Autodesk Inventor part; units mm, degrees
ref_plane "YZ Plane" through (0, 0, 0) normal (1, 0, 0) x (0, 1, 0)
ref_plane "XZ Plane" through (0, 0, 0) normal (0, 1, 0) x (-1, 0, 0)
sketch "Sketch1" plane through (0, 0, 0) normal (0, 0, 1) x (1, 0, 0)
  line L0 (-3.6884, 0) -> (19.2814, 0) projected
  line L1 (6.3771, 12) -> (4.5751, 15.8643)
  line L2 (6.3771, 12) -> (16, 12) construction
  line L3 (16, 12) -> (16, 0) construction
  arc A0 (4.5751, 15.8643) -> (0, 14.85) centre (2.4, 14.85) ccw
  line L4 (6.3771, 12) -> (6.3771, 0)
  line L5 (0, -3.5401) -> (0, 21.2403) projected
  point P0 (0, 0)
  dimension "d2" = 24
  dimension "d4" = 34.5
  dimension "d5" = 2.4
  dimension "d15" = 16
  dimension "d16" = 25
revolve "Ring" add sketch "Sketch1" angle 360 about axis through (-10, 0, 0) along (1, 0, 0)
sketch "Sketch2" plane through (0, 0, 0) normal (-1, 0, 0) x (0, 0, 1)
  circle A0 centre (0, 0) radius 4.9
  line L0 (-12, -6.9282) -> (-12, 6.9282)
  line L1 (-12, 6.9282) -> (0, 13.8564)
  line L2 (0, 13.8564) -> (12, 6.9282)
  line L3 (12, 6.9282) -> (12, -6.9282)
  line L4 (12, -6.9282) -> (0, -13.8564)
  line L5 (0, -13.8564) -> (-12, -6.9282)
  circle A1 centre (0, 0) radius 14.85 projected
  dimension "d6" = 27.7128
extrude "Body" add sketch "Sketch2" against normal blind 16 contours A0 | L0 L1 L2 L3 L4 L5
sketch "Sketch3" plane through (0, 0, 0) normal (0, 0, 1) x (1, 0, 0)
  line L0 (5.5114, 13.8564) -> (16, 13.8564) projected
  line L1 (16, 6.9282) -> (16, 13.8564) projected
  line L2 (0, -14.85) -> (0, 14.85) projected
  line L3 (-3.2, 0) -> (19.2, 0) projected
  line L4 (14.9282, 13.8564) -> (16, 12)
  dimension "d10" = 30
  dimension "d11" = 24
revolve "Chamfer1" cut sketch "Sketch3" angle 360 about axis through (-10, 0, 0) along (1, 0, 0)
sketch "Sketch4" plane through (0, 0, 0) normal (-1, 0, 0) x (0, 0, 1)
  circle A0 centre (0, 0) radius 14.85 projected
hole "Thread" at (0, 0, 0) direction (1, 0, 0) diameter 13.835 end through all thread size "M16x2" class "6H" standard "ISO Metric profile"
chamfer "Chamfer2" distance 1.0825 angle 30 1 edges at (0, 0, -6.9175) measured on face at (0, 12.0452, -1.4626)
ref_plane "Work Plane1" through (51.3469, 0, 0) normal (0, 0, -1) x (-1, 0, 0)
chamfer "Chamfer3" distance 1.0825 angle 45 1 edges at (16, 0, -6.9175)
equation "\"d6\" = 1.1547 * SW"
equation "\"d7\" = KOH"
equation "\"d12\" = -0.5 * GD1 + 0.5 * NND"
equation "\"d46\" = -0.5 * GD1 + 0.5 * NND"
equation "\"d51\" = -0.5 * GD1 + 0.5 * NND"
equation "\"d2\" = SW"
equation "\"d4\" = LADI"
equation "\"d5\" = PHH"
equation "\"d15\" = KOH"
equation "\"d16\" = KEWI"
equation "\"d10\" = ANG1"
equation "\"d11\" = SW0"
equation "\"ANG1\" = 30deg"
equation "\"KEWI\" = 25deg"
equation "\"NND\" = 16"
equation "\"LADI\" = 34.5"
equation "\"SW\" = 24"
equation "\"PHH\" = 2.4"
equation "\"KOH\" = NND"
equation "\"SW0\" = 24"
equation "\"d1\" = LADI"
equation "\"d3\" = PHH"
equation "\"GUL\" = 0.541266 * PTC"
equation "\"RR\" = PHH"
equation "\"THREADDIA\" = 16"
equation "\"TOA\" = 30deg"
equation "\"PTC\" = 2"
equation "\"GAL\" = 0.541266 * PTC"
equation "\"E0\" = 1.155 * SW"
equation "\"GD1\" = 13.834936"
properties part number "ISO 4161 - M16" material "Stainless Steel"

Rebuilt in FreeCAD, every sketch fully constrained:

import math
import FreeCAD as App
import Part
import Sketcher
from FreeCAD import Vector
Q = App.Units.Quantity


def edges_at(feature, points):
    """Names of the edges that pass closest to the given points."""
    edges = feature.Shape.Edges
    near = lambda p: min(range(len(edges)), key=lambda i: edges[i].distToShape(Part.Vertex(*p))[0])
    return sorted({f"Edge{near(p) + 1}" for p in points})

doc = App.newDocument("Part")
body = doc.addObject("PartDesign::Body", "Body")

# Sketch on XY plane
sketch1 = body.newObject("Sketcher::SketchObject", "Sketch")
sketch1.AttachmentSupport = (doc.getObject("XY_Plane"), [""])
sketch1.MapMode = "FlatFace"
sketch1.addGeometry([
    Part.LineSegment(Vector(0, 14.85, 0), Vector(0, 0, 0)),  # 0
    Part.LineSegment(Vector(0, 0, 0), Vector(6.3771, 0, 0)),  # 1
    Part.LineSegment(Vector(6.3771, 0, 0), Vector(6.3771, 12, 0)),  # 2
    Part.LineSegment(Vector(6.3771, 12, 0), Vector(4.5751, 15.8643, 0)),  # 3
    Part.ArcOfCircle(Part.Circle(Vector(2.4, 14.85, 0), Vector(0, 0, 1), 2.399972), math.radians(25.00074), math.radians(180)),  # 4
], False)
sketch1.addConstraint([
    Sketcher.Constraint("Coincident", 0, 2, 1, 1),
    Sketcher.Constraint("Coincident", 1, 2, 2, 1),
    Sketcher.Constraint("Coincident", 2, 2, 3, 1),
    Sketcher.Constraint("Tangent", 3, 2, 4, 1),
    Sketcher.Constraint("Tangent", 4, 2, 0, 1),
    Sketcher.Constraint("Vertical", 0),
    Sketcher.Constraint("Horizontal", 1),
    Sketcher.Constraint("Vertical", 2),
    Sketcher.Constraint("Coincident", 0, 2, -1, 1),
    Sketcher.Constraint("Radius", 4, Q("2.4 mm")),
    Sketcher.Constraint("DistanceY", 2, 1, 2, 2, Q("12 mm")),
    Sketcher.Constraint("Angle", 3, Q("115.0006 deg")),
    Sketcher.Constraint("DistanceY", 0, 2, 0, 1, Q("14.85 mm")),
])
revolution = body.newObject("PartDesign::Revolution", "Revolution")
revolution.Profile = sketch1
revolution.ReferenceAxis = (sketch1, ["H_Axis"])
revolution.Angle = 360

# Sketch on YZ plane
sketch2 = body.newObject("Sketcher::SketchObject", "Sketch001")
sketch2.AttachmentSupport = (doc.getObject("YZ_Plane"), [""])
sketch2.MapMode = "FlatFace"
sketch2.addGeometry([
    Part.LineSegment(Vector(6.9282, -12, 0), Vector(-6.9282, -12, 0)),  # 0
    Part.LineSegment(Vector(-6.9282, -12, 0), Vector(-13.8564, 0, 0)),  # 1
    Part.LineSegment(Vector(-13.8564, 0, 0), Vector(-6.9282, 12, 0)),  # 2
    Part.LineSegment(Vector(-6.9282, 12, 0), Vector(6.9282, 12, 0)),  # 3
    Part.LineSegment(Vector(6.9282, 12, 0), Vector(13.8564, 0, 0)),  # 4
    Part.LineSegment(Vector(13.8564, 0, 0), Vector(6.9282, -12, 0)),  # 5
], False)
sketch2.addConstraint([
    Sketcher.Constraint("Coincident", 0, 2, 1, 1),
    Sketcher.Constraint("Coincident", 1, 2, 2, 1),
    Sketcher.Constraint("Coincident", 2, 2, 3, 1),
    Sketcher.Constraint("Coincident", 3, 2, 4, 1),
    Sketcher.Constraint("Coincident", 4, 2, 5, 1),
    Sketcher.Constraint("Coincident", 5, 2, 0, 1),
    Sketcher.Constraint("Horizontal", 0),
    Sketcher.Constraint("Horizontal", 3),
    Sketcher.Constraint("Symmetric", 0, 2, 3, 2, -1, 1),
    Sketcher.Constraint("Symmetric", 1, 2, 4, 2, -1, 1),
    Sketcher.Constraint("PointOnObject", 1, 2, -1),
    Sketcher.Constraint("Parallel", 2, 5),
    Sketcher.Constraint("Vertical", 0, 2, 2, 2),
    Sketcher.Constraint("Angle", 1, Q("120 deg")),
    Sketcher.Constraint("DistanceY", 0, 2, -1, 1, Q("12 mm")),
    Sketcher.Constraint("DistanceX", 1, 2, 4, 2, Q("27.7128 mm")),
])
pad1 = body.newObject("PartDesign::Pad", "Pad")
pad1.Profile = sketch2
pad1.Length = 16

# Sketch on XY plane
sketch3 = body.newObject("Sketcher::SketchObject", "Sketch002")
sketch3.AttachmentSupport = (doc.getObject("XY_Plane"), [""])
sketch3.MapMode = "FlatFace"
sketch3.addGeometry([
    Part.LineSegment(Vector(16, 13.8564, 0), Vector(14.9282, 13.8564, 0)),
    Part.LineSegment(Vector(14.9282, 13.8564, 0), Vector(16, 12, 0)),
    Part.LineSegment(Vector(16, 12, 0), Vector(16, 13.8564, 0)),
], False)
sketch3.addConstraint([
    Sketcher.Constraint("Coincident", 0, 2, 1, 1),
    Sketcher.Constraint("Coincident", 1, 2, 2, 1),
    Sketcher.Constraint("Coincident", 2, 2, 0, 1),
    Sketcher.Constraint("Horizontal", 0),
    Sketcher.Constraint("Vertical", 2),
    Sketcher.Constraint("Angle", 1, Q("-59.9998 deg")),
    Sketcher.Constraint("DistanceX", -1, 1, 1, 2, Q("16 mm")),
    Sketcher.Constraint("DistanceY", -1, 1, 1, 2, Q("12 mm")),
    Sketcher.Constraint("DistanceX", 0, 2, 0, 1, Q("1.0718 mm")),
])
groove = body.newObject("PartDesign::Groove", "Groove")
groove.Profile = sketch3
groove.ReferenceAxis = (sketch3, ["H_Axis"])
groove.Angle = 360

# Sketch on YZ plane
sketch4 = body.newObject("Sketcher::SketchObject", "Sketch003")
sketch4.AttachmentSupport = (doc.getObject("YZ_Plane"), [""])
sketch4.MapMode = "FlatFace"
sketch4.addGeometry(Part.Circle(Vector(0, 0, 0), Vector(0, 0, 1), 6.9175), False)
sketch4.addConstraint([
    Sketcher.Constraint("Coincident", 0, 3, -1, 1),
    Sketcher.Constraint("Diameter", 0, Q("13.835 mm")),
])
doc.recompute()
hole = body.newObject("PartDesign::Hole", "Hole")
hole.Profile = sketch4
hole.ThreadType = "None"
hole.Diameter = 13.835
hole.DepthType = "ThroughAll"
hole.Reversed = True
doc.recompute()

chamfer = body.newObject("PartDesign::Chamfer", "Chamfer")
chamfer.Base = (hole, edges_at(hole, [(0, 0, -6.918)]))
chamfer.ChamferType = "Distance and Angle"
chamfer.Size = 1.0825
chamfer.Angle = 30
doc.recompute()

chamfer2 = body.newObject("PartDesign::Chamfer", "Chamfer001")
chamfer2.Base = (chamfer, edges_at(chamfer, [(16, 0, -6.918)]))
chamfer2.Size = 1.0825

doc.recompute()
